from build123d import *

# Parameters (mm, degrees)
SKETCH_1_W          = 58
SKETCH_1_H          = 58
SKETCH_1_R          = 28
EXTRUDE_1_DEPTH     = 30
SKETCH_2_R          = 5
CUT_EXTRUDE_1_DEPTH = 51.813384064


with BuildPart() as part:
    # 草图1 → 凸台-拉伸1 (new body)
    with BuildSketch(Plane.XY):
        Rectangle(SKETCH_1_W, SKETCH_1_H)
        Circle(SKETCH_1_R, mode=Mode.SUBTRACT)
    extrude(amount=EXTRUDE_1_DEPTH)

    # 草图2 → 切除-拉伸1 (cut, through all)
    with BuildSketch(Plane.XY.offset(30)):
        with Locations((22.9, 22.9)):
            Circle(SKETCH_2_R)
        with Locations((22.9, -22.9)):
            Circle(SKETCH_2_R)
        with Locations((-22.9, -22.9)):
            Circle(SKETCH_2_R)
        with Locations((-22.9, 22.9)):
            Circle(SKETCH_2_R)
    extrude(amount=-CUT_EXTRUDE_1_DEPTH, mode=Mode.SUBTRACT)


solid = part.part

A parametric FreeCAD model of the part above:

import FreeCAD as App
import Part
import Sketcher
from FreeCAD import Vector


def add_polygon(sketch, points):
    """Adds a closed chain of lines whose ends are joined by coincident constraints."""
    first, n = sketch.GeometryCount, len(points)
    for a, b in zip(points, points[1:] + points[:1]):
        sketch.addGeometry(Part.LineSegment(App.Vector(*a, 0), App.Vector(*b, 0)), False)
    for i in range(n):
        sketch.addConstraint(Sketcher.Constraint("Coincident", first + i, 2, first + (i + 1) % n, 1))

doc = App.newDocument("Part")
body = doc.addObject("PartDesign::Body", "Body")

# Sketch on XY plane
sketch1 = body.newObject("Sketcher::SketchObject", "Sketch")
sketch1.AttachmentSupport = (doc.getObject("XY_Plane"), [""])
sketch1.MapMode = "FlatFace"
add_polygon(sketch1, [(-29, 29), (-29, -29), (29, -29), (29, 29)])  # lines 0-3
sketch1.addGeometry(Part.Circle(Vector(0, 0, 0), Vector(0, 0, 1), 28), False)  # 4
sketch1.addConstraint([
    Sketcher.Constraint("Vertical", 0),
    Sketcher.Constraint("Horizontal", 1),
    Sketcher.Constraint("Vertical", 2),
    Sketcher.Constraint("Horizontal", 3),
    Sketcher.Constraint("Coincident", 4, 3, -1, 1),
    Sketcher.Constraint("Symmetric", 0, 2, 2, 2, -1, 1),
    Sketcher.Constraint("Equal", 3, 0),
    Sketcher.Constraint("Diameter", 4, 56.0),
    Sketcher.Constraint("DistanceX", 1, 1, 1, 2, 58.0),
])
pad1 = body.newObject("PartDesign::Pad", "Pad")
pad1.Profile = sketch1
pad1.Length = 30

# Sketch on XY plane
sketch2 = body.newObject("Sketcher::SketchObject", "Sketch001")
sketch2.AttachmentSupport = (doc.getObject("XY_Plane"), [""])
sketch2.MapMode = "FlatFace"
sketch2.AttachmentOffset = App.Placement(Vector(0, 0, 30), App.Rotation())
sketch2.addGeometry([
    Part.Circle(Vector(23, 23, 0), Vector(0, 0, 1), 5),
    Part.Circle(Vector(23, -23, 0), Vector(0, 0, 1), 5),
    Part.Circle(Vector(-23, -23, 0), Vector(0, 0, 1), 5),
    Part.Circle(Vector(-23, 23, 0), Vector(0, 0, 1), 5),
], False)
sketch2.addConstraint([
    Sketcher.Constraint("Equal", 0, 1),
    Sketcher.Constraint("Equal", 1, 2),
    Sketcher.Constraint("Equal", 2, 3),
    Sketcher.Constraint("Symmetric", 0, 3, 2, 3, -1, 1),
    Sketcher.Constraint("Symmetric", 1, 3, 3, 3, -1, 1),
    Sketcher.Constraint("Symmetric", 1, 3, 2, 3, -2),
    Sketcher.Constraint("Diameter", 0, 10.0),
    Sketcher.Constraint("DistanceX", -1, 1, 0, 3, 22.9),
    Sketcher.Constraint("DistanceY", -1, 1, 0, 3, 22.9),
])
pocket1 = body.newObject("PartDesign::Pocket", "Pocket")
pocket1.Profile = sketch2
pocket1.Type = "ThroughAll"

doc.recompute()
